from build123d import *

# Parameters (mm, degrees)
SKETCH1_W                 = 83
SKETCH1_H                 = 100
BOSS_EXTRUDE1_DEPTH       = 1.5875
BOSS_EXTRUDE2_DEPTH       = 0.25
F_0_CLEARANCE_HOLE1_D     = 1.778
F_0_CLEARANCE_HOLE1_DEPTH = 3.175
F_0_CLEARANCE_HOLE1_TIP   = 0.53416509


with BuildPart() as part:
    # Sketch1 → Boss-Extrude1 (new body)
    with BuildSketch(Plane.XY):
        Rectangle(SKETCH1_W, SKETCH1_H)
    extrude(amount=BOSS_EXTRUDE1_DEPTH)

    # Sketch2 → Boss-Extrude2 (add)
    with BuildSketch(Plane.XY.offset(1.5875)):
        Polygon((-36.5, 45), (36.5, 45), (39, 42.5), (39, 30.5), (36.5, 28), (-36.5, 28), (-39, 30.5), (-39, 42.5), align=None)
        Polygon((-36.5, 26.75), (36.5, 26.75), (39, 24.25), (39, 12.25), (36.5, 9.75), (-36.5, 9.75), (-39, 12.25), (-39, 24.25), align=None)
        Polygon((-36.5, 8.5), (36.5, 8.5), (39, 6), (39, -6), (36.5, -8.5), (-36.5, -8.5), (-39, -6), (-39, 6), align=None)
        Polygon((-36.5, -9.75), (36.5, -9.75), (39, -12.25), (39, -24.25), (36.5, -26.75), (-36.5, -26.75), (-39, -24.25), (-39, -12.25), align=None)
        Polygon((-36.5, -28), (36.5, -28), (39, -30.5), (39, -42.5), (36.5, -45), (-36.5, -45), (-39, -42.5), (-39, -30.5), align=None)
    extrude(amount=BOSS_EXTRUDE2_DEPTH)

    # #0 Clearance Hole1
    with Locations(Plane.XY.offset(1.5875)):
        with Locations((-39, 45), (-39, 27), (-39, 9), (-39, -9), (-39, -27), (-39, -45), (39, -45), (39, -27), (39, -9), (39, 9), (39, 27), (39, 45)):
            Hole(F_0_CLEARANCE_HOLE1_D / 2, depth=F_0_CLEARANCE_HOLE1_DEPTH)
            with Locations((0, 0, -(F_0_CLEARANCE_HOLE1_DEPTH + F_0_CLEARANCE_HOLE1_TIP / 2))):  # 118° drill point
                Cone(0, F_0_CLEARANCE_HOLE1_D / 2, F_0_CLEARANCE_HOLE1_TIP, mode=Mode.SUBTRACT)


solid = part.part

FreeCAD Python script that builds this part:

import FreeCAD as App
import Part
import Sketcher


def add_polygon(sketch, points):
    """Adds a closed chain of lines whose ends are joined by coincident constraints."""
    first, n = sketch.GeometryCount, len(points)
    for a, b in zip(points, points[1:] + points[:1]):
        sketch.addGeometry(Part.LineSegment(App.Vector(*a, 0), App.Vector(*b, 0)), False)
    for i in range(n):
        sketch.addConstraint(Sketcher.Constraint("Coincident", first + i, 2, first + (i + 1) % n, 1))

doc = App.newDocument("Part")
body = doc.addObject("PartDesign::Body", "Body")

# Sketch on XY plane
sketch1 = body.newObject("Sketcher::SketchObject", "Sketch")
sketch1.AttachmentSupport = (doc.getObject("XY_Plane"), [""])
sketch1.MapMode = "FlatFace"
add_polygon(sketch1, [(-41.5, 50), (-41.5, -50), (41.5, -50), (41.5, 50)])  # lines 0-3
sketch1.addConstraint([
    Sketcher.Constraint("Vertical", 0),
    Sketcher.Constraint("Horizontal", 1),
    Sketcher.Constraint("Vertical", 2),
    Sketcher.Constraint("Horizontal", 3),
    Sketcher.Constraint("Symmetric", 0, 2, 2, 2, -1, 1),
    Sketcher.Constraint("DistanceX", 1, 1, 1, 2, 83.0),
    Sketcher.Constraint("DistanceY", 0, 2, 0, 1, 100.0),
])
pad1 = body.newObject("PartDesign::Pad", "Pad")
pad1.Profile = sketch1
pad1.Length = 1.5875

# Sketch on XY plane
sketch2 = body.newObject("Sketcher::SketchObject", "Sketch001")
sketch2.AttachmentSupport = (doc.getObject("XY_Plane"), [""])
sketch2.MapMode = "FlatFace"
sketch2.AttachmentOffset = App.Placement(App.Vector(0, 0, 1.5875), App.Rotation())
add_polygon(sketch2, [(36.5, 45), (-36.5, 45), (-39, 42.5), (-39, 30.5), (-36.5, 28), (36.5, 28), (39, 30.5), (39, 42.5)])  # lines 0-7
add_polygon(sketch2, [(36.5, 26.75), (-36.5, 26.75), (-39, 24.25), (-39, 12.25), (-36.5, 9.75), (36.5, 9.75), (39, 12.25), (39, 24.25)])  # lines 8-15
add_polygon(sketch2, [(36.5, 8.5), (-36.5, 8.5), (-39, 6), (-39, -6), (-36.5, -8.5), (36.5, -8.5), (39, -6), (39, 6)])  # lines 16-23
add_polygon(sketch2, [(36.5, -9.75), (-36.5, -9.75), (-39, -12.25), (-39, -24.25), (-36.5, -26.75), (36.5, -26.75), (39, -24.25), (39, -12.25)])  # lines 24-31
add_polygon(sketch2, [(36.5, -28), (-36.5, -28), (-39, -30.5), (-39, -42.5), (-36.5, -45), (36.5, -45), (39, -42.5), (39, -30.5)])  # lines 32-39
sketch2.addConstraint([
    Sketcher.Constraint("Horizontal", 0),
    Sketcher.Constraint("Vertical", 2),
    Sketcher.Constraint("Horizontal", 4),
    Sketcher.Constraint("Vertical", 6),
    Sketcher.Constraint("Horizontal", 8),
    Sketcher.Constraint("Vertical", 10),
    Sketcher.Constraint("Horizontal", 12),
    Sketcher.Constraint("Vertical", 14),
    Sketcher.Constraint("Horizontal", 16),
    Sketcher.Constraint("Vertical", 18),
    Sketcher.Constraint("Horizontal", 20),
    Sketcher.Constraint("Vertical", 22),
    Sketcher.Constraint("Horizontal", 24),
    Sketcher.Constraint("Vertical", 26),
    Sketcher.Constraint("Horizontal", 28),
    Sketcher.Constraint("Vertical", 30),
    Sketcher.Constraint("Horizontal", 32),
    Sketcher.Constraint("Vertical", 34),
    Sketcher.Constraint("Horizontal", 36),
    Sketcher.Constraint("Vertical", 38),
    Sketcher.Constraint("Symmetric", 16, 2, 20, 2, -1, 1),
    Sketcher.Constraint("Symmetric", 17, 2, 21, 2, -1, 1),
    Sketcher.Constraint("Symmetric", 12, 2, 24, 2, -1, 1),
    Sketcher.Constraint("Symmetric", 13, 2, 25, 2, -1, 1),
    Sketcher.Constraint("Symmetric", 15, 2, 27, 2, -1, 1),
    Sketcher.Constraint("Symmetric", 9, 2, 29, 2, -1, 1),
    Sketcher.Constraint("Symmetric", 4, 2, 32, 2, -1, 1),
    Sketcher.Constraint("Symmetric", 5, 2, 33, 2, -1, 1),
    Sketcher.Constraint("Symmetric", 7, 2, 35, 2, -1, 1),
    Sketcher.Constraint("Symmetric", 1, 2, 37, 2, -1, 1),
    Sketcher.Constraint("Symmetric", 2, 2, 5, 2, -2),
    Sketcher.Constraint("Symmetric", 10, 2, 13, 2, -2),
    Sketcher.Constraint("Perpendicular", 1, 3),
    Sketcher.Constraint("Perpendicular", 3, 5),
    Sketcher.Constraint("Perpendicular", 5, 7),
    Sketcher.Constraint("Perpendicular", 7, 9),
    Sketcher.Constraint("Perpendicular", 9, 11),
    Sketcher.Constraint("Perpendicular", 11, 13),
    Sketcher.Constraint("Perpendicular", 13, 15),
    Sketcher.Constraint("Perpendicular", 15, 17),
    Sketcher.Constraint("Perpendicular", 17, 19),
    Sketcher.Constraint("Perpendicular", 21, 23),
    Sketcher.Constraint("Perpendicular", 25, 27),
    Sketcher.Constraint("Perpendicular", 27, 29),
    Sketcher.Constraint("Perpendicular", 29, 31),
    Sketcher.Constraint("Perpendicular", 33, 35),
    Sketcher.Constraint("Perpendicular", 35, 37),
    Sketcher.Constraint("Perpendicular", 37, 39),
    Sketcher.Constraint("Horizontal", 1, 2, 6, 2),
    Sketcher.Constraint("Horizontal", 9, 2, 14, 2),
    Sketcher.Constraint("Horizontal", 18, 2, 21, 2),
    Sketcher.Constraint("Horizontal", 17, 2, 22, 2),
    Sketcher.Constraint("Horizontal", 25, 2, 30, 2),
    Sketcher.Constraint("Horizontal", 33, 2, 38, 2),
    Sketcher.Constraint("Vertical", 0, 2, 3, 2),
    Sketcher.Constraint("Vertical", 4, 2, 7, 2),
    Sketcher.Constraint("Vertical", 3, 2, 8, 2),
    Sketcher.Constraint("Vertical", 2, 2, 9, 2),
    Sketcher.Constraint("Vertical", 8, 2, 11, 2),
    Sketcher.Constraint("Vertical", 11, 2, 16, 2),
    Sketcher.Constraint("Vertical", 10, 2, 17, 2),
    Sketcher.Constraint("Equal", 6, 10),
    Sketcher.Constraint("Equal", 14, 18),
    Sketcher.Constraint("DistanceX", 0, 2, 0, 1, 73.0),
    Sketcher.Constraint("DistanceY", 2, 2, 2, 1, 12.0),
    Sketcher.Constraint("DistanceY", -1, 1, 0, 2, 45.0),
    Sketcher.Constraint("DistanceX", 1, 2, -1, 1, 39.0),
    Sketcher.Constraint("DistanceY", 24, 2, 11, 2, 19.5),
])
pad2 = body.newObject("PartDesign::Pad", "Pad001")
pad2.Profile = sketch2
pad2.Length = 0.25

# Sketch on XY plane
sketch3 = body.newObject("Sketcher::SketchObject", "Sketch002")
sketch3.AttachmentSupport = (doc.getObject("XY_Plane"), [""])
sketch3.MapMode = "FlatFace"
sketch3.AttachmentOffset = App.Placement(App.Vector(0, 0, 1.5875), App.Rotation())
sketch3.addGeometry([
    Part.Circle(App.Vector(-39, 45, 0), App.Vector(0, 0, 1), 0.889),  # 0
    Part.Circle(App.Vector(-39, 27, 0), App.Vector(0, 0, 1), 0.889),  # 1
    Part.Circle(App.Vector(-39, 9, 0), App.Vector(0, 0, 1), 0.889),  # 2
    Part.Circle(App.Vector(-39, -9, 0), App.Vector(0, 0, 1), 0.889),  # 3
    Part.Circle(App.Vector(-39, -27, 0), App.Vector(0, 0, 1), 0.889),  # 4
    Part.Circle(App.Vector(-39, -45, 0), App.Vector(0, 0, 1), 0.889),  # 5
    Part.Circle(App.Vector(39, -45, 0), App.Vector(0, 0, 1), 0.889),  # 6
    Part.Circle(App.Vector(39, -27, 0), App.Vector(0, 0, 1), 0.889),  # 7
    Part.Circle(App.Vector(39, -9, 0), App.Vector(0, 0, 1), 0.889),  # 8
    Part.Circle(App.Vector(39, 9, 0), App.Vector(0, 0, 1), 0.889),  # 9
    Part.Circle(App.Vector(39, 27, 0), App.Vector(0, 0, 1), 0.889),  # 10
    Part.Circle(App.Vector(39, 45, 0), App.Vector(0, 0, 1), 0.889),  # 11
], False)
sketch3.addConstraint([
    Sketcher.Constraint("Equal", 0, 1),
    Sketcher.Constraint("Equal", 1, 2),
    Sketcher.Constraint("Equal", 2, 3),
    Sketcher.Constraint("Equal", 3, 4),
    Sketcher.Constraint("Equal", 4, 5),
    Sketcher.Constraint("Equal", 5, 6),
    Sketcher.Constraint("Equal", 6, 7),
    Sketcher.Constraint("Equal", 7, 8),
    Sketcher.Constraint("Equal", 8, 9),
    Sketcher.Constraint("Equal", 9, 10),
    Sketcher.Constraint("Equal", 10, 11),
    Sketcher.Constraint("Symmetric", 0, 3, 6, 3, -1, 1),
    Sketcher.Constraint("Symmetric", 1, 3, 7, 3, -1, 1),
    Sketcher.Constraint("Symmetric", 2, 3, 8, 3, -1, 1),
    Sketcher.Constraint("Symmetric", 3, 3, 9, 3, -1, 1),
    Sketcher.Constraint("Symmetric", 4, 3, 10, 3, -1, 1),
    Sketcher.Constraint("Symmetric", 5, 3, 11, 3, -1, 1),
    Sketcher.Constraint("Symmetric", 5, 3, 6, 3, -2),
    Sketcher.Constraint("Symmetric", 4, 3, 7, 3, -2),
    Sketcher.Constraint("Symmetric", 3, 3, 8, 3, -2),
    Sketcher.Constraint("Vertical", 0, 3, 1, 3),
    Sketcher.Constraint("Vertical", 1, 3, 2, 3),
    Sketcher.Constraint("Diameter", 0, 1.778),
    Sketcher.Constraint("DistanceX", 0, 3, -1, 1, 39.0),
    Sketcher.Constraint("DistanceY", -1, 1, 0, 3, 45.0),
    Sketcher.Constraint("DistanceY", -1, 1, 1, 3, 27.0),
    Sketcher.Constraint("DistanceY", -1, 1, 2, 3, 9.0),
])
doc.recompute()
hole = body.newObject("PartDesign::Hole", "Hole")
hole.Profile = sketch3
hole.ThreadType = "None"
hole.Diameter = 1.778
hole.DepthType = "Dimension"
hole.Depth = 3.175
hole.DrillPoint = "Angled"
hole.DrillPointAngle = 118

doc.recompute()
